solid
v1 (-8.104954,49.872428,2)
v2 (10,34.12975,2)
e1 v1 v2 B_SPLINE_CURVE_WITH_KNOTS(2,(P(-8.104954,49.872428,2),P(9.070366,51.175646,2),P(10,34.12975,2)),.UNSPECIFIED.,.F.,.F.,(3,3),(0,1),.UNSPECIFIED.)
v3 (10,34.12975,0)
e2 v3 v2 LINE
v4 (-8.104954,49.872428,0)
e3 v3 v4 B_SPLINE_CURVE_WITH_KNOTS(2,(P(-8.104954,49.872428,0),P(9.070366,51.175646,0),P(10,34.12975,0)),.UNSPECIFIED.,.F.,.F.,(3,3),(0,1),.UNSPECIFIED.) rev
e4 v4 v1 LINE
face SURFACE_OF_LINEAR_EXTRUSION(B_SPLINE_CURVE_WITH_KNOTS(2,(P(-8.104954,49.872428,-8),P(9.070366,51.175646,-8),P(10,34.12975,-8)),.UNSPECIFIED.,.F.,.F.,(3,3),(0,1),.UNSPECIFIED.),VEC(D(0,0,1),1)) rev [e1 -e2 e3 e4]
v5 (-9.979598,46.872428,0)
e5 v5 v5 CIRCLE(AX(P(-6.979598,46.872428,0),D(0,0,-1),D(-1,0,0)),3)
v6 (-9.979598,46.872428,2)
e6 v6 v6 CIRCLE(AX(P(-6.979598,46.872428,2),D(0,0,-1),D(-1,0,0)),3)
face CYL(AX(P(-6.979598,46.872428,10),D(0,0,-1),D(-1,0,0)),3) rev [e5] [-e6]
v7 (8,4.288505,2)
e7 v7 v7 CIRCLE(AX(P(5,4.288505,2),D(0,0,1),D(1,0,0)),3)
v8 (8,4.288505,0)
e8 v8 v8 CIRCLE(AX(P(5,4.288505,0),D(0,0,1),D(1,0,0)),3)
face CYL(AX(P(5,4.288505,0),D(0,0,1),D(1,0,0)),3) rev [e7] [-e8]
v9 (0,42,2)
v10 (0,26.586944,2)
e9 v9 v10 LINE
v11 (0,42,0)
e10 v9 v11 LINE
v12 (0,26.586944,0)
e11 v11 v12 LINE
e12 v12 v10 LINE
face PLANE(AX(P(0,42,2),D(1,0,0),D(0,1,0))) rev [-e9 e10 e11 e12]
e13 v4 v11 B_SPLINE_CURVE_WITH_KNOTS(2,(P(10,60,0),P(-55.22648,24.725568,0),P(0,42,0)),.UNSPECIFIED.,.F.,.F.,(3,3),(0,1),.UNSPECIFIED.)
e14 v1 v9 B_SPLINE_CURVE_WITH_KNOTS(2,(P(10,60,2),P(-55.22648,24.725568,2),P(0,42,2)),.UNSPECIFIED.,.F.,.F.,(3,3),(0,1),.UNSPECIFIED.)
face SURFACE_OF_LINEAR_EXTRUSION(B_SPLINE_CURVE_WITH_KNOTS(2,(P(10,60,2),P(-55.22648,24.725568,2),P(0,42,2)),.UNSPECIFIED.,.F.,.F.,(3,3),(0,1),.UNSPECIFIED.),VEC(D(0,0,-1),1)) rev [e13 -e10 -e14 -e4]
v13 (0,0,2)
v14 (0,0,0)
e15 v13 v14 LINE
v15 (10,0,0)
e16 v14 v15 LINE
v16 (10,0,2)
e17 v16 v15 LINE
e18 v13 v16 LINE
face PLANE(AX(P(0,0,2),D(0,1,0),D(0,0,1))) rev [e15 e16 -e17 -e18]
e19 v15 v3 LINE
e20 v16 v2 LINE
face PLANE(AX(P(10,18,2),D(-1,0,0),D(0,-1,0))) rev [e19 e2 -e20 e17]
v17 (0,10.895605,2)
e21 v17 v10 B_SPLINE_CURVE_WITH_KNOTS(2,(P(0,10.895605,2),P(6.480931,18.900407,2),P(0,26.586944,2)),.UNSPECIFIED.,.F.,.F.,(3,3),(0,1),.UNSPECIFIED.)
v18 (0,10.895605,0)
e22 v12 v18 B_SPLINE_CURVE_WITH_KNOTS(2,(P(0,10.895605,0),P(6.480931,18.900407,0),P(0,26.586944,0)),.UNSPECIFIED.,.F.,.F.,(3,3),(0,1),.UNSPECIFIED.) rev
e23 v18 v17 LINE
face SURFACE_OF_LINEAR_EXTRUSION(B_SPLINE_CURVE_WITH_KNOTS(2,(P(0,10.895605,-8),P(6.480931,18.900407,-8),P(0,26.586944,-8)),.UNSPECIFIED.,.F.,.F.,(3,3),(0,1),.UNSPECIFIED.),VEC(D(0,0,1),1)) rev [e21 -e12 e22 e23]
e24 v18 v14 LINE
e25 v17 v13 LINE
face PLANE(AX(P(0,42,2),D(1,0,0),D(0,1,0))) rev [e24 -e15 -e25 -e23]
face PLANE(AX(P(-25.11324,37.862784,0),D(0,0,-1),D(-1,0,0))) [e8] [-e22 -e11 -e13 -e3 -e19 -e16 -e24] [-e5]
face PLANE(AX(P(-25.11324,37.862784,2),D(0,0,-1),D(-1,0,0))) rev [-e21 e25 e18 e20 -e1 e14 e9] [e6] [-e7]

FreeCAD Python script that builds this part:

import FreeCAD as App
import Part
import Sketcher
from FreeCAD import Vector
Q = App.Units.Quantity

doc = App.newDocument("Part")
body = doc.addObject("PartDesign::Body", "Body")

# Sketch on XY plane
sketch1 = body.newObject("Sketcher::SketchObject", "Sketch")
sketch1.AttachmentSupport = (doc.getObject("XY_Plane"), [""])
sketch1.MapMode = "FlatFace"
sketch1.addGeometry([
    Part.LineSegment(Vector(0, 0, 0), Vector(10, 0, 0)),
    Part.LineSegment(Vector(10, 0, 0), Vector(10, 60, 0)),
    Part.BSplineCurve([Vector(10, 60, 0), Vector(-55.22648, 24.725568, 0), Vector(0, 42, 0)], [3, 3], [0, 1], False, 2, [1, 1, 1], False),
    Part.LineSegment(Vector(0, 42, 0), Vector(0, 0, 0)),
], False)
sketch1.addConstraint([
    Sketcher.Constraint("Block", 2),
    Sketcher.Constraint("Coincident", 0, 2, 1, 1),
    Sketcher.Constraint("Coincident", 1, 2, 2, 1),
    Sketcher.Constraint("Coincident", 2, 2, 3, 1),
    Sketcher.Constraint("Coincident", 3, 2, 0, 1),
    Sketcher.Constraint("Horizontal", 0),
    Sketcher.Constraint("Vertical", 1),
    Sketcher.Constraint("Vertical", 3),
    Sketcher.Constraint("PointOnObject", 0, 2, -1),
])
pad1 = body.newObject("PartDesign::Pad", "Pad")
pad1.Profile = sketch1
pad1.Length = 2

# Sketch on XY plane
sketch2 = body.newObject("Sketcher::SketchObject", "Sketch001")
sketch2.AttachmentSupport = (doc.getObject("XY_Plane"), [""])
sketch2.MapMode = "FlatFace"
sketch2.AttachmentOffset = App.Placement(Vector(0, 0, 2), App.Rotation())
sketch2.addGeometry(Part.Circle(Vector(5, 4.3, 0), Vector(0, 0, 1), 3), False)
sketch2.addConstraint([
    Sketcher.Constraint("Diameter", 0, Q("6 mm")),
    Sketcher.Constraint("DistanceX", -1, 1, 0, 3, Q("5 mm")),
    Sketcher.Constraint("DistanceY", -1, 1, 0, 3, Q("4.288505 mm")),
])
pocket1 = body.newObject("PartDesign::Pocket", "Pocket")
pocket1.Profile = sketch2
pocket1.Length = 2

# Sketch on XY plane
sketch3 = body.newObject("Sketcher::SketchObject", "Sketch002")
sketch3.AttachmentSupport = (doc.getObject("XY_Plane"), [""])
sketch3.MapMode = "FlatFace"
sketch3.AttachmentOffset = App.Placement(Vector(0, 0, 2), App.Rotation())
sketch3.addGeometry([
    Part.LineSegment(Vector(0, 26.586944, 0), Vector(0, 10.895605, 0)),
    Part.BSplineCurve([Vector(0, 26.586944, 0), Vector(6.480931, 18.900407, 0), Vector(0, 10.895605, 0)], [3, 3], [0, 1], False, 2, [1, 1, 1], False),
], False)
sketch3.addConstraint([
    Sketcher.Constraint("Block", 1),
    Sketcher.Constraint("Coincident", 0, 1, 1, 1),
    Sketcher.Constraint("Coincident", 1, 2, 0, 2),
])
pocket2 = body.newObject("PartDesign::Pocket", "Pocket001")
pocket2.Profile = sketch3
pocket2.Length = 10

# Sketch on XY plane
sketch4 = body.newObject("Sketcher::SketchObject", "Sketch003")
sketch4.AttachmentSupport = (doc.getObject("XY_Plane"), [""])
sketch4.MapMode = "FlatFace"
sketch4.AttachmentOffset = App.Placement(Vector(0, 0, 2), App.Rotation())
sketch4.addGeometry([
    Part.LineSegment(Vector(10, 34.12975, 0), Vector(10, 60, 0)),
    Part.BSplineCurve([Vector(10, 60, 0), Vector(-0.661574, 54.234229, 0), Vector(-8.104954, 49.872428, 0)], [3, 3], [0, 1], False, 2, [1, 1, 1], False),
    Part.BSplineCurve([Vector(10, 34.12975, 0), Vector(9.070366, 51.175646, 0), Vector(-8.104954, 49.872428, 0)], [3, 3], [0, 1], False, 2, [1, 1, 1], False),
], False)
sketch4.addConstraint([
    Sketcher.Constraint("Block", 1),
    Sketcher.Constraint("Block", 2),
    Sketcher.Constraint("Coincident", 0, 2, 1, 1),
    Sketcher.Constraint("Coincident", 2, 1, 0, 1),
])
pocket3 = body.newObject("PartDesign::Pocket", "Pocket002")
pocket3.Profile = sketch4
pocket3.Length = 10

# Sketch on XY plane
sketch5 = body.newObject("Sketcher::SketchObject", "Sketch004")
sketch5.AttachmentSupport = (doc.getObject("XY_Plane"), [""])
sketch5.MapMode = "FlatFace"
sketch5.addGeometry(Part.Circle(Vector(-7, 46.9, 0), Vector(0, 0, 1), 3), False)
sketch5.addConstraint([
    Sketcher.Constraint("Diameter", 0, Q("6 mm")),
    Sketcher.Constraint("DistanceX", 0, 3, -1, 1, Q("6.979598 mm")),
    Sketcher.Constraint("DistanceY", -1, 1, 0, 3, Q("46.872428 mm")),
])
pocket4 = body.newObject("PartDesign::Pocket", "Pocket003")
pocket4.Profile = sketch5
pocket4.Length = 10
pocket4.Reversed = True

doc.recompute()
